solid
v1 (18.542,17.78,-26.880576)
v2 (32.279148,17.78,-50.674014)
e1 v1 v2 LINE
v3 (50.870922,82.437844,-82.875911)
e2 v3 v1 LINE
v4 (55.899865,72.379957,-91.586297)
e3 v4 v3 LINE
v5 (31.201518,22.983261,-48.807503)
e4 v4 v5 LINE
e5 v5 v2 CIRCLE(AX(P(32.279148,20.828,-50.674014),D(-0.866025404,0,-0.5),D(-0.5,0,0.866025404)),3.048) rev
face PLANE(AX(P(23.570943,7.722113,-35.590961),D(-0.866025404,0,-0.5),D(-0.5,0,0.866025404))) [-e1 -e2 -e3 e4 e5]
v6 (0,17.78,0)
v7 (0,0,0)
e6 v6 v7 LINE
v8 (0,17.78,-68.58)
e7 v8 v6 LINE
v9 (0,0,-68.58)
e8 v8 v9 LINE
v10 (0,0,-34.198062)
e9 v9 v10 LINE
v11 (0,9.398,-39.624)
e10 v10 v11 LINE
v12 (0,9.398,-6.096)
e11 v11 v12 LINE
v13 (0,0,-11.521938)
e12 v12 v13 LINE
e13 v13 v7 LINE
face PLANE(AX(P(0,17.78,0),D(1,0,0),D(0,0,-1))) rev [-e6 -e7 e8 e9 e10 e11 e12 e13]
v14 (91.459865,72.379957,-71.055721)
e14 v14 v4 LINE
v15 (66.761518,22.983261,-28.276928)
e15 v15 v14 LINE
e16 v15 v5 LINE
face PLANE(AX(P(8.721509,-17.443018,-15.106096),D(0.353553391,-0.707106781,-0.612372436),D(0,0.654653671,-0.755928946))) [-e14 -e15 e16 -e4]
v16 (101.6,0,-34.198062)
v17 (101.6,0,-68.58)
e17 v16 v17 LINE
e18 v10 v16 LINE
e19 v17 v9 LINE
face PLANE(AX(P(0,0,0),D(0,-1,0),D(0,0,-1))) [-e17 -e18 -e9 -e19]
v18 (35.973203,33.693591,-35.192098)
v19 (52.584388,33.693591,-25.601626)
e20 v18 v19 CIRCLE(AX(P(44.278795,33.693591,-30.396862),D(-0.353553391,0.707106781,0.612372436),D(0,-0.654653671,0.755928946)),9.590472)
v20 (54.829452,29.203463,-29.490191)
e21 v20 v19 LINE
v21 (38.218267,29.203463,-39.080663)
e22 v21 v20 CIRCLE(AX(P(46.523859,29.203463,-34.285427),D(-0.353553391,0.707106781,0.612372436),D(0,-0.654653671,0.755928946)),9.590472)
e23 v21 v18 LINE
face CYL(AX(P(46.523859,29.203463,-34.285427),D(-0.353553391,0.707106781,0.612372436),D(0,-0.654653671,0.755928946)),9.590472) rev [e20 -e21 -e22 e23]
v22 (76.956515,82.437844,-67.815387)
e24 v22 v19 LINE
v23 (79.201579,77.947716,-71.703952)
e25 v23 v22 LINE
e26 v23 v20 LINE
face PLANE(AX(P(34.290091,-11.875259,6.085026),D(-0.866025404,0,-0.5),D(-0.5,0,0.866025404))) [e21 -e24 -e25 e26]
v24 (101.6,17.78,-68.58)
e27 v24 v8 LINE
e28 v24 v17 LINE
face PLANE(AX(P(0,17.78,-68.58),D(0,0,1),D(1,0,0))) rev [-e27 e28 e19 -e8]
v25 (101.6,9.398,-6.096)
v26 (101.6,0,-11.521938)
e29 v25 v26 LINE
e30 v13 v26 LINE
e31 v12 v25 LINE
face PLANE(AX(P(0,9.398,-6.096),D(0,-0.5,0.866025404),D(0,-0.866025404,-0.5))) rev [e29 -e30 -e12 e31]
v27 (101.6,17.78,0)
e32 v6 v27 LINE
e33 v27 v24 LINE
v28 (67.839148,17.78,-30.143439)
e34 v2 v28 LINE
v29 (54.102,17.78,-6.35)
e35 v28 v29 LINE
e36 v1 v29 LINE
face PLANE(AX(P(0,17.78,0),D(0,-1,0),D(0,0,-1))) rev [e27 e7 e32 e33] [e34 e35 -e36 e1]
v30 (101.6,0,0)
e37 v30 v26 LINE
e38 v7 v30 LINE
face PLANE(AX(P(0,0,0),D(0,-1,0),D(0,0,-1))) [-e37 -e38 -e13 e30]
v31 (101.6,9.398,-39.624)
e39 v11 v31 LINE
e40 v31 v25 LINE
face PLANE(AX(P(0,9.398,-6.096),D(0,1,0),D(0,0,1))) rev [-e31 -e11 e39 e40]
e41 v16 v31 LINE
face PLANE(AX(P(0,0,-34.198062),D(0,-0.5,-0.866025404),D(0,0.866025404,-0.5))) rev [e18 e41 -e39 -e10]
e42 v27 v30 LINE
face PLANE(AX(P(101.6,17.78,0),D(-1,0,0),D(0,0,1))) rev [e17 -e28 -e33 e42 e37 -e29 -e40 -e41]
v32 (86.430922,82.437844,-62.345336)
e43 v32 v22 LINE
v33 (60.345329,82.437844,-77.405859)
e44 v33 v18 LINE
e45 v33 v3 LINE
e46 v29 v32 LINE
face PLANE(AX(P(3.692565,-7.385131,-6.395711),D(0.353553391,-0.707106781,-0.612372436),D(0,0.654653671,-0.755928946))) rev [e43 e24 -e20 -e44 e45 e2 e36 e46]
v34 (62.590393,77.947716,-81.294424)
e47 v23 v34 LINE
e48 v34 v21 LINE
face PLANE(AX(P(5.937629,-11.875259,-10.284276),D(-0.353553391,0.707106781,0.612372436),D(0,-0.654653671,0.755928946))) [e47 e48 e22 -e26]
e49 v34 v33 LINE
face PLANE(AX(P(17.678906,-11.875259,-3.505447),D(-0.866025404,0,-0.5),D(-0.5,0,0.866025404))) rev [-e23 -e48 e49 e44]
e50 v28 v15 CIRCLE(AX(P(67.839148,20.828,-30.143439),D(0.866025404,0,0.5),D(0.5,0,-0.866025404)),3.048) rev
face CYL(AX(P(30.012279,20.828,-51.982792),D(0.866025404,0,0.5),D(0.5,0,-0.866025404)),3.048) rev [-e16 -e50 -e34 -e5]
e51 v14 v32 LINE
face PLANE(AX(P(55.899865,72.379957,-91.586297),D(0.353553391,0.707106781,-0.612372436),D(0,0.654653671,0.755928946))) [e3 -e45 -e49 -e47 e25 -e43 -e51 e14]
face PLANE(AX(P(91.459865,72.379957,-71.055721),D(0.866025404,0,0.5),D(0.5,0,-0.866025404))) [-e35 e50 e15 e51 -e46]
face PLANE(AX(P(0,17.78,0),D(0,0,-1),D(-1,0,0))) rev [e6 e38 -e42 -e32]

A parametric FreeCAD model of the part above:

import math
import FreeCAD as App
import Part
import Sketcher
from FreeCAD import Vector
Q = App.Units.Quantity


def edges_at(feature, points):
    """Names of the edges that pass closest to the given points."""
    edges = feature.Shape.Edges
    near = lambda p: min(range(len(edges)), key=lambda i: edges[i].distToShape(Part.Vertex(*p))[0])
    return sorted({f"Edge{near(p) + 1}" for p in points})

doc = App.newDocument("Part")
body = doc.addObject("PartDesign::Body", "Body")

sketch1 = body.newObject("Sketcher::SketchObject", "Sketch")
sketch1.AttachmentSupport = (doc.getObject("XZ_Plane"), [""])
sketch1.MapMode = "FlatFace"
sketch1.addGeometry([
    Part.LineSegment(Vector(0, -68.58, 0), Vector(0, 0, 0)),
    Part.LineSegment(Vector(0, 0, 0), Vector(101.6, 0, 0)),
    Part.LineSegment(Vector(101.6, 0, 0), Vector(101.6, -68.58, 0)),
    Part.LineSegment(Vector(101.6, -68.58, 0), Vector(0, -68.58, 0)),
], False)
sketch1.addConstraint([
    Sketcher.Constraint("Coincident", 0, 2, 1, 1),
    Sketcher.Constraint("Coincident", 1, 2, 2, 1),
    Sketcher.Constraint("Coincident", 2, 2, 3, 1),
    Sketcher.Constraint("Coincident", 3, 2, 0, 1),
    Sketcher.Constraint("Vertical", 0),
    Sketcher.Constraint("Horizontal", 1),
    Sketcher.Constraint("Vertical", 2),
    Sketcher.Constraint("Horizontal", 3),
    Sketcher.Constraint("Coincident", 0, 2, -1, 1),
    Sketcher.Constraint("DistanceX", 1, 1, 1, 2, Q("4 in")),
    Sketcher.Constraint("DistanceY", 0, 1, 0, 2, Q("2.7 in")),
])
pad1 = body.newObject("PartDesign::Pad", "Pad")
pad1.Profile = sketch1
pad1.Length = Q("0.7 in")
pad1.Reversed = True

sketch2 = body.newObject("Sketcher::SketchObject", "Sketch001")
sketch2.Placement = App.Placement(Vector(3.692565, -7.385131, -6.395711), App.Rotation(Vector(-0.866025404, 0, -0.5), Vector(-0.353553391, -0.707106782, 0.612372436), Vector(-0.353553391, 0.707106781, 0.612372436), "ZXY"))
sketch2.addGeometry([
    Part.LineSegment(Vector(-43.678706, -35.588869, 0), Vector(-43.678706, -127.028869, 0)),
    Part.LineSegment(Vector(-43.678706, -127.028869, 0), Vector(-2.617555, -127.028869, 0)),
    Part.LineSegment(Vector(-2.617555, -127.028869, 0), Vector(-2.617555, -35.588869, 0)),
    Part.LineSegment(Vector(-2.617555, -35.588869, 0), Vector(-43.678706, -35.588869, 0)),
], False)
sketch2.addConstraint([
    Sketcher.Constraint("Coincident", 0, 2, 1, 1),
    Sketcher.Constraint("Coincident", 1, 2, 2, 1),
    Sketcher.Constraint("Coincident", 2, 2, 3, 1),
    Sketcher.Constraint("Coincident", 3, 2, 0, 1),
    Sketcher.Constraint("Vertical", 0),
    Sketcher.Constraint("Horizontal", 1),
    Sketcher.Constraint("Vertical", 2),
    Sketcher.Constraint("Horizontal", 3),
    Sketcher.Constraint("DistanceY", 0, 2, 0, 1, Q("3.6 in")),
    Sketcher.Constraint("DistanceX", 1, 1, 1, 2, Q("41.061151 mm")),
    Sketcher.Constraint("DistanceY", 0, 2, -1, 1, Q("127.028869 mm")),
    Sketcher.Constraint("DistanceX", 0, 2, -1, 1, Q("43.678706 mm")),
])
pad2 = body.newObject("PartDesign::Pad", "Pad001")
pad2.Profile = sketch2
pad2.Length = Q("0.56 in")
pad2.Reversed = True

sketch3 = body.newObject("Sketcher::SketchObject", "Sketch002")
sketch3.Placement = App.Placement(Vector(3.692565, -7.385131, -6.395711), App.Rotation(Vector(0.935414347, 0.267261242, 0.231455025), Vector(0, 0.654653671, -0.755928946), Vector(-0.353553391, 0.707106781, 0.612372436), "ZXY"))
sketch3.addGeometry([
    Part.LineSegment(Vector(78.322456, 105.231851, 0), Vector(60.564352, 112.481567, 0)),
    Part.LineSegment(Vector(60.564352, 112.481567, 0), Vector(34.509453, 48.660359, 0)),
    Part.ArcOfCircle(Part.Circle(Vector(43.388505, 45.035501, 0), Vector(0, 0, 1), 9.590472), math.radians(157.792346), math.radians(337.792346)),
    Part.LineSegment(Vector(52.267557, 41.410643, 0), Vector(78.322456, 105.231851, 0)),
], False)
sketch3.addConstraint([
    Sketcher.Constraint("Coincident", 0, 2, 1, 1),
    Sketcher.Constraint("Tangent", 1, 2, 2, 1),
    Sketcher.Constraint("Tangent", 2, 2, 3, 1),
    Sketcher.Constraint("Coincident", 3, 2, 0, 1),
    Sketcher.Constraint("Perpendicular", 0, 1),
    Sketcher.Constraint("Parallel", 1, 3),
    Sketcher.Constraint("Radius", 2, Q("9.590472 mm")),
    Sketcher.Constraint("DistanceY", -1, 1, 2, 3, Q("45.035501 mm")),
    Sketcher.Constraint("DistanceX", 1, 2, 0, 2, Q("26.054899 mm")),
    Sketcher.Constraint("DistanceY", -1, 1, 1, 2, Q("48.660359 mm")),
    Sketcher.Constraint("DistanceX", -1, 1, 2, 3, Q("43.388505 mm")),
])
pocket1 = body.newObject("PartDesign::Pocket", "Pocket")
pocket1.Profile = sketch3
pocket1.Length = Q("0.25 in")
doc.recompute()

fillet = body.newObject("PartDesign::Fillet", "Fillet")
fillet.Base = (pocket1, edges_at(pocket1, [(46.38, 17.78, -34.036)]))
fillet.Radius = Q("0.12 in")

sketch4 = body.newObject("Sketcher::SketchObject", "Sketch003")
sketch4.AttachmentSupport = (doc.getObject("YZ_Plane"), [""])
sketch4.MapMode = "FlatFace"
sketch4.AttachmentOffset = App.Placement(Vector(0, 0, 4 * 25.4), App.Rotation())
sketch4.addGeometry([
    Part.LineSegment(Vector(9.398, -39.624, 0), Vector(9.398, -6.096, 0)),
    Part.LineSegment(Vector(9.398, -6.096, 0), Vector(0, -11.521938, 0)),
    Part.LineSegment(Vector(0, -11.521938, 0), Vector(0, -34.198062, 0)),
    Part.LineSegment(Vector(0, -34.198062, 0), Vector(9.398, -39.624, 0)),
], False)
sketch4.addConstraint([
    Sketcher.Constraint("Coincident", 0, 2, 1, 1),
    Sketcher.Constraint("Coincident", 1, 2, 2, 1),
    Sketcher.Constraint("Coincident", 2, 2, 3, 1),
    Sketcher.Constraint("Coincident", 3, 2, 0, 1),
    Sketcher.Constraint("Vertical", 0),
    Sketcher.Constraint("Vertical", 2),
    Sketcher.Constraint("PointOnObject", 1, 2, -2),
    Sketcher.Constraint("Equal", 1, 3),
    Sketcher.Constraint("Angle", 1, Q("-150 deg")),
    Sketcher.Constraint("DistanceY", 0, 1, 0, 2, Q("1.32 in")),
    Sketcher.Constraint("DistanceX", -1, 1, 0, 2, Q("0.37 in")),
    Sketcher.Constraint("DistanceY", 0, 2, -1, 1, Q("0.24 in")),
])
pocket2 = body.newObject("PartDesign::Pocket", "Pocket001")
pocket2.Profile = sketch4
pocket2.Type = "ThroughAll"

doc.recompute()
